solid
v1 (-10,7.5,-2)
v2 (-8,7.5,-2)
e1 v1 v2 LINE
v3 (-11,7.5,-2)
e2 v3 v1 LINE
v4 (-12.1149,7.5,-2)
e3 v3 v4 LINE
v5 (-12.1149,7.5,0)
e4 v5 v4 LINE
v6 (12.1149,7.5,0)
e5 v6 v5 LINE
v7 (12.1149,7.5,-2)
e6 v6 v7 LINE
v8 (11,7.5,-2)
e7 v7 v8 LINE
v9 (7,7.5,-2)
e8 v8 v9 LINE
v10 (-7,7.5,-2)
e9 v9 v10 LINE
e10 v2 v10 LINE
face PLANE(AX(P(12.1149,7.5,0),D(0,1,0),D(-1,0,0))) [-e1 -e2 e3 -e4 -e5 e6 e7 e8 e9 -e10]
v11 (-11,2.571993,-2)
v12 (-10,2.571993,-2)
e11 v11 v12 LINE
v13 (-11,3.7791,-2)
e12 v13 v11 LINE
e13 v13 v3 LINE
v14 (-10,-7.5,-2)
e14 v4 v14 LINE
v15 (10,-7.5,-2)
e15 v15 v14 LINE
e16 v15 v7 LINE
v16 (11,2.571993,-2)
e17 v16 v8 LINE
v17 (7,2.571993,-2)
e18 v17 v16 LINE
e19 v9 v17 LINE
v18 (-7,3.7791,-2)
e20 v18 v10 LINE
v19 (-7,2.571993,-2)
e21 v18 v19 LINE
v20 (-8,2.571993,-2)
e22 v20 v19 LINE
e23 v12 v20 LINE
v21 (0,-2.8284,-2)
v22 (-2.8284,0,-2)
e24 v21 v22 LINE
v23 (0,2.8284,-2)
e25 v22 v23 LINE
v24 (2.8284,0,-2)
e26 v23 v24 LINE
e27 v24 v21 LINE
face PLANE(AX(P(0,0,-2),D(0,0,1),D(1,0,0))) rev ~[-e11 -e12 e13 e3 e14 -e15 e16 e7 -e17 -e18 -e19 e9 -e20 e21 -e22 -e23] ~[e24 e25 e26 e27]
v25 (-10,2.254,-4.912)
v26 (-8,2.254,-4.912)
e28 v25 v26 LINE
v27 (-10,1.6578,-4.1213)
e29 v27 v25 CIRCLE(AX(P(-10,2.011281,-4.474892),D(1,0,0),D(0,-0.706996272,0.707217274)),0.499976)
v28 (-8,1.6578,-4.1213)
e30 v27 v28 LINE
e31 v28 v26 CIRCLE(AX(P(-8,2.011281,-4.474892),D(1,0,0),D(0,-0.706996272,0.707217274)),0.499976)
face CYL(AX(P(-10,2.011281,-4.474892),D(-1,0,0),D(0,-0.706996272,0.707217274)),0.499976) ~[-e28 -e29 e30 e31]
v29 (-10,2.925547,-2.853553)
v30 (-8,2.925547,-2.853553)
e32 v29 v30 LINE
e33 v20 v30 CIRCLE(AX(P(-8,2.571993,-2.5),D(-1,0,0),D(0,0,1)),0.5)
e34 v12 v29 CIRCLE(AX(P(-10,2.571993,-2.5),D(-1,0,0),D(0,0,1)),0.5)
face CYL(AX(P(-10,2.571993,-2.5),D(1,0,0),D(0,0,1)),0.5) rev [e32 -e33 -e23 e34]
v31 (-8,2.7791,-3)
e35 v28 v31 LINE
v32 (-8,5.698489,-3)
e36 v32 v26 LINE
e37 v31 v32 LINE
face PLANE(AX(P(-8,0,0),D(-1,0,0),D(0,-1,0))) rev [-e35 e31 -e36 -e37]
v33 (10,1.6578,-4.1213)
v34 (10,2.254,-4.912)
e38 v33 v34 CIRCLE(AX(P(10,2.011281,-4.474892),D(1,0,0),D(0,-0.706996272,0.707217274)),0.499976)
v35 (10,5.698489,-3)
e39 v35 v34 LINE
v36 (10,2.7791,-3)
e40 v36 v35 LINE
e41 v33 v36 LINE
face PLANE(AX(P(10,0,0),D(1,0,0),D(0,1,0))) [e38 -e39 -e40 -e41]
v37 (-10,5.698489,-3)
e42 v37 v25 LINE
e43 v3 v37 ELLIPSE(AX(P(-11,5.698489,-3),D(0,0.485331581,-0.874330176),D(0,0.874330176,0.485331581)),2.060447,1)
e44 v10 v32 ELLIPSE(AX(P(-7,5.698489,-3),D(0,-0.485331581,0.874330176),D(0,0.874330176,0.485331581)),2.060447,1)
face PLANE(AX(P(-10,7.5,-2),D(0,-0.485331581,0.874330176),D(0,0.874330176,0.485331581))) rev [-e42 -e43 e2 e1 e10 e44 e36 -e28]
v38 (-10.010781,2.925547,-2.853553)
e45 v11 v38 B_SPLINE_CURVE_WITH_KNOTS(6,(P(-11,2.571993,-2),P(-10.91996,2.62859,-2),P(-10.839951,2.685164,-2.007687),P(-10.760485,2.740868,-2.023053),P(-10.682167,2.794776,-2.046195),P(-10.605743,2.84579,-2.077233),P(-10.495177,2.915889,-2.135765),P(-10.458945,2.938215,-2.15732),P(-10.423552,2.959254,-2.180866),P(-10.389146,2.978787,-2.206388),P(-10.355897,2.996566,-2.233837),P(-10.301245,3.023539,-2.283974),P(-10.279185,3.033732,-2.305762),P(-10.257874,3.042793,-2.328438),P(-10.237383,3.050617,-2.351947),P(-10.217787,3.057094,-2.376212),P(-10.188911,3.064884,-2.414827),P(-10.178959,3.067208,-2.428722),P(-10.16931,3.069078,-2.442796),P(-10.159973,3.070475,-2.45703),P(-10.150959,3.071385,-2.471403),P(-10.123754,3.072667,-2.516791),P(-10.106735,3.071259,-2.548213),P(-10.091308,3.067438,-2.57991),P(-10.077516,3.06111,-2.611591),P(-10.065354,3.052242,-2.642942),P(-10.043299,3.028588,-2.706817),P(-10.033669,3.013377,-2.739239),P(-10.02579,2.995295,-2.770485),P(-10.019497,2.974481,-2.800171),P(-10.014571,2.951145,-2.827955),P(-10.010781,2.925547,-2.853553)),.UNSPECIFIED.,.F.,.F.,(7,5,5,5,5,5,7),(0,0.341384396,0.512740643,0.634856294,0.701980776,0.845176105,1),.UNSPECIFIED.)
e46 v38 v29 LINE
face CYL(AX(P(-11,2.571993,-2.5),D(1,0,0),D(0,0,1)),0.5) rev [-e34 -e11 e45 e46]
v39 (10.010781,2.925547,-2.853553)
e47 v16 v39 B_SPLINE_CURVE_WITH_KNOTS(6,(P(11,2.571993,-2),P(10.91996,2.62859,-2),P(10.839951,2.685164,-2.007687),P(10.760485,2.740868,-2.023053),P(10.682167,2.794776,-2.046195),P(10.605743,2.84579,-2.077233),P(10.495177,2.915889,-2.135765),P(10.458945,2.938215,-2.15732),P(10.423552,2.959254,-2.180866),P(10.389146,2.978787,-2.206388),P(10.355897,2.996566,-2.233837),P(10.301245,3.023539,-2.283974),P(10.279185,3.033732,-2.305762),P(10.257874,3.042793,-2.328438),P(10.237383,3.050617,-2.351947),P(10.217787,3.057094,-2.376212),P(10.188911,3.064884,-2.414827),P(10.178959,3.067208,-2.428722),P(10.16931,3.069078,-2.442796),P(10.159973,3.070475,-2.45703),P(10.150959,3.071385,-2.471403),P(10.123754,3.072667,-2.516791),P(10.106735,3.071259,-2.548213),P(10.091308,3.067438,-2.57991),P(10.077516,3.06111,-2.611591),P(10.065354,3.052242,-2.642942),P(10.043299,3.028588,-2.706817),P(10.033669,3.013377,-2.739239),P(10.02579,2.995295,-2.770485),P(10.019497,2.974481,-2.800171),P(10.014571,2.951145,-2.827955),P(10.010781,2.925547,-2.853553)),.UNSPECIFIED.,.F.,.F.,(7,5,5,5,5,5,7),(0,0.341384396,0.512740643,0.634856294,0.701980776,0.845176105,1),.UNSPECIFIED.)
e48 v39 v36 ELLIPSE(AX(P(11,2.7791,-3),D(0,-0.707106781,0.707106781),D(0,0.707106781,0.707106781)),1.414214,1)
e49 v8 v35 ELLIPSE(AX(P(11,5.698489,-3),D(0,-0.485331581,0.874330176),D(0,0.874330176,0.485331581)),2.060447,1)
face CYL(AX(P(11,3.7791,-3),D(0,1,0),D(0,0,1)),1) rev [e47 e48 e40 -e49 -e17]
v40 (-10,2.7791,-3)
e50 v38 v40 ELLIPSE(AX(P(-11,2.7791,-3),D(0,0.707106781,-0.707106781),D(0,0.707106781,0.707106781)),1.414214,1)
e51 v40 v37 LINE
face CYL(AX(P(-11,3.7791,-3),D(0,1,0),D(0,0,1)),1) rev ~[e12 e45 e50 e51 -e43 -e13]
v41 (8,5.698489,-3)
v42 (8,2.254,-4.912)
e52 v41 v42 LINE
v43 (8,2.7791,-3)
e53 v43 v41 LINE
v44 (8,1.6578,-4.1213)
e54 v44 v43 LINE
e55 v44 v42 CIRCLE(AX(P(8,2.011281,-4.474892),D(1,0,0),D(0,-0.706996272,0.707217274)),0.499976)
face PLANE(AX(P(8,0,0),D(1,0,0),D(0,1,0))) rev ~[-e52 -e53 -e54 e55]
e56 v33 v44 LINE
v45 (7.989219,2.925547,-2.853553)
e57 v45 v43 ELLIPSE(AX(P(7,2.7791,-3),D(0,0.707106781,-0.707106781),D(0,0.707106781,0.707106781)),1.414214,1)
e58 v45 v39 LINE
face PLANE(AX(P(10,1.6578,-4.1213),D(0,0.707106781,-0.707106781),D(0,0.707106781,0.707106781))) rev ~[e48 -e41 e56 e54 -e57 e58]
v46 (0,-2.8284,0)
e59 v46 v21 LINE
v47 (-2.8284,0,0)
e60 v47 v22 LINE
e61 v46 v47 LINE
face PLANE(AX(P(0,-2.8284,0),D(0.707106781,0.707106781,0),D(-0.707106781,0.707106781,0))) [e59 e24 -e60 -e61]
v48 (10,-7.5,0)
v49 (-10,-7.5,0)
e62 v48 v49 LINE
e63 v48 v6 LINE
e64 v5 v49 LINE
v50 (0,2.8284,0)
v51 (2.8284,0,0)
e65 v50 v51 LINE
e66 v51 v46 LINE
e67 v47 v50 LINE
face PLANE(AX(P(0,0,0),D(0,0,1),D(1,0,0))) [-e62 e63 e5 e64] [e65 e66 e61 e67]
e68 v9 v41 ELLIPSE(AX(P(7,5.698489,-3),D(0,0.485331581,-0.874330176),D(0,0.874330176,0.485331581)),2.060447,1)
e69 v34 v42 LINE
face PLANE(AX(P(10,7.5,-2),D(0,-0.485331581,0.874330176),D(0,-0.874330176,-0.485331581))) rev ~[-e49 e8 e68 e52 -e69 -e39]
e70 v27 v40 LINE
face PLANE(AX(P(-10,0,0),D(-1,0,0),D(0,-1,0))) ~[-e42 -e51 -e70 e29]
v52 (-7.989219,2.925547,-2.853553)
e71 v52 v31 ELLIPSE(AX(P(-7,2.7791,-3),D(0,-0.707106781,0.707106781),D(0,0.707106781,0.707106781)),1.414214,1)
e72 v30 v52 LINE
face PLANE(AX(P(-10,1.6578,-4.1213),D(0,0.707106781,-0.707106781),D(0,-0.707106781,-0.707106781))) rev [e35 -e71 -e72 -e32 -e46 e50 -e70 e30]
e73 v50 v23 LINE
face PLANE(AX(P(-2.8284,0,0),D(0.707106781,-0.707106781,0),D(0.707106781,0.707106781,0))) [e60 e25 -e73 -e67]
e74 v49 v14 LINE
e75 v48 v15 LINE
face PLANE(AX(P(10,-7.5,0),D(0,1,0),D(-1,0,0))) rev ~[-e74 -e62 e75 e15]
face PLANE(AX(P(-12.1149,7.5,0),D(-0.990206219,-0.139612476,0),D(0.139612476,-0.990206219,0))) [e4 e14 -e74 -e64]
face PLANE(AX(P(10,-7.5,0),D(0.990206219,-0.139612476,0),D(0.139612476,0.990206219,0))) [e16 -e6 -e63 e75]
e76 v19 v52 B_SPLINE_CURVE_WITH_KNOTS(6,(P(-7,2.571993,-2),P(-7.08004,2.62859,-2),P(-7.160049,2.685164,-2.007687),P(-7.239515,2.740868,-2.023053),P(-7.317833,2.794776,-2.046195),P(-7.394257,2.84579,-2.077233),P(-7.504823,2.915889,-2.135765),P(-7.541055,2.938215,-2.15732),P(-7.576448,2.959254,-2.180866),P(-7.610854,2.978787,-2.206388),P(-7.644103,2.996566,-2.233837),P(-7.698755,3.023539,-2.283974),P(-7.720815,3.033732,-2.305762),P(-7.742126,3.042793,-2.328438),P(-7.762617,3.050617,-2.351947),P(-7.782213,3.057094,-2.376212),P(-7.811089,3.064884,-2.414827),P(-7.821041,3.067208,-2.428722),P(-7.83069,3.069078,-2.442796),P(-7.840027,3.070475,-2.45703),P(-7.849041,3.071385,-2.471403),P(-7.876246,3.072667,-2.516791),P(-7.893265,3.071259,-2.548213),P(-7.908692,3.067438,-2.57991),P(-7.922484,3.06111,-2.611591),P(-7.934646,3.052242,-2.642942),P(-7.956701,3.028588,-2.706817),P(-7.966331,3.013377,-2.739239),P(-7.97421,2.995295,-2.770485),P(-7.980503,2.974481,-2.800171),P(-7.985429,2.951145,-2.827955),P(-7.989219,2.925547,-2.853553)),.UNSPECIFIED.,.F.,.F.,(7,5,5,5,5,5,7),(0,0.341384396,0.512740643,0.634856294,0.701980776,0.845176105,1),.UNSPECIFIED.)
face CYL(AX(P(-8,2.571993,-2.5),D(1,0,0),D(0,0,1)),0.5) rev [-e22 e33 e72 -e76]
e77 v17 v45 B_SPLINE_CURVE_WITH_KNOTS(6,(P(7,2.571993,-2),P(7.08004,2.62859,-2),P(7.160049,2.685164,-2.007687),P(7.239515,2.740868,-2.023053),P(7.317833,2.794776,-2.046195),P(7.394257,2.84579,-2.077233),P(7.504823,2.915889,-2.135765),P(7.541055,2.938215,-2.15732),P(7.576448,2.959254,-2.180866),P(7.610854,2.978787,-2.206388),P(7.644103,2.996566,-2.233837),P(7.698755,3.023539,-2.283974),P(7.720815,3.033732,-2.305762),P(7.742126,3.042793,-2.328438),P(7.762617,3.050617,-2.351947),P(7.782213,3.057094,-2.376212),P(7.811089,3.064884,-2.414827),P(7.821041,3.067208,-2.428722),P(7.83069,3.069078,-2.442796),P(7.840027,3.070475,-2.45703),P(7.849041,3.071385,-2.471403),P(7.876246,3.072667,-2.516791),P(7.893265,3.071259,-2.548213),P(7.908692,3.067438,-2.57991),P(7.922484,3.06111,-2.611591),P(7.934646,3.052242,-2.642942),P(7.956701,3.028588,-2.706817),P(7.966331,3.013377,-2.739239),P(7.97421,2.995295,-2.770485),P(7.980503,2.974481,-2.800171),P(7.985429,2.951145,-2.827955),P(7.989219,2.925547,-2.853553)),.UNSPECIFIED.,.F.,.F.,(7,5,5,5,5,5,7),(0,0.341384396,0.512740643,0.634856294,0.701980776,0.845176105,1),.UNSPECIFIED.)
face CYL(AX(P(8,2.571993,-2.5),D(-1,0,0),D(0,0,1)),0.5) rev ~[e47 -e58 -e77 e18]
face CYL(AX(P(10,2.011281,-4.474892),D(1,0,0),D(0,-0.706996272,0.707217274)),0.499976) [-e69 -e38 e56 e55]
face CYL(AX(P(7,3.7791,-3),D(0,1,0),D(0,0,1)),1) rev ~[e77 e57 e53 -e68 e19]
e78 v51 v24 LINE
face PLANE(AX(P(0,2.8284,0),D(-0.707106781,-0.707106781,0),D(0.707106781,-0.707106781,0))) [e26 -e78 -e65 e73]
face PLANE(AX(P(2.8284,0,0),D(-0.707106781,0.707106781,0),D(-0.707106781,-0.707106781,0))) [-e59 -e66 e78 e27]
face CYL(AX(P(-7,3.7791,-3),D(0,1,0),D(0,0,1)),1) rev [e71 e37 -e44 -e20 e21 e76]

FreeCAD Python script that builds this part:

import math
import FreeCAD as App
import Part
import Sketcher
from FreeCAD import Vector
Q = App.Units.Quantity


def edges_at(feature, points):
    """Names of the edges that pass closest to the given points."""
    edges = feature.Shape.Edges
    near = lambda p: min(range(len(edges)), key=lambda i: edges[i].distToShape(Part.Vertex(*p))[0])
    return sorted({f"Edge{near(p) + 1}" for p in points})

doc = App.newDocument("Part")
body = doc.addObject("PartDesign::Body", "Body")

# Sketch on XY plane
sketch1 = body.newObject("Sketcher::SketchObject", "Sketch")
sketch1.AttachmentSupport = (doc.getObject("XY_Plane"), [""])
sketch1.MapMode = "FlatFace"
sketch1.addGeometry(Part.LineSegment(Vector(12.1, 7.5, 0), Vector(-12.1, 7.5, 0)), False)
sketch1.addGeometry(Part.LineSegment(Vector(-12.1, 7.5, 0), Vector(-10, -7.5, 0)), False)
sketch1.addGeometry(Part.LineSegment(Vector(-10, -7.5, 0), Vector(10, -7.5, 0)), False)
sketch1.addGeometry(Part.LineSegment(Vector(10, -7.5, 0), Vector(12.1, 7.5, 0)), False)
sketch1.addGeometry(Part.LineSegment(Vector(0, 2.8, 0), Vector(2.8, 0, 0)), False)
sketch1.addGeometry(Part.LineSegment(Vector(2.8, 0, 0), Vector(0, -2.8, 0)), False)
sketch1.addGeometry(Part.LineSegment(Vector(0, -2.8, 0), Vector(-2.8, 0, 0)), False)
sketch1.addGeometry(Part.LineSegment(Vector(-2.8, 0, 0), Vector(0, 2.8, 0)), False)
sketch1.addConstraint(Sketcher.Constraint("Coincident", 0, 2, 1, 1))
sketch1.addConstraint(Sketcher.Constraint("Coincident", 1, 2, 2, 1))
sketch1.addConstraint(Sketcher.Constraint("Coincident", 2, 2, 3, 1))
sketch1.addConstraint(Sketcher.Constraint("Coincident", 3, 2, 0, 1))
sketch1.addConstraint(Sketcher.Constraint("Coincident", 4, 2, 5, 1))
sketch1.addConstraint(Sketcher.Constraint("Coincident", 5, 2, 6, 1))
sketch1.addConstraint(Sketcher.Constraint("Coincident", 6, 2, 7, 1))
sketch1.addConstraint(Sketcher.Constraint("Coincident", 7, 2, 4, 1))
sketch1.addConstraint(Sketcher.Constraint("Horizontal", 0))
sketch1.addConstraint(Sketcher.Constraint("Horizontal", 2))
sketch1.addConstraint(Sketcher.Constraint("Symmetric", 4, 2, 6, 2, -1, 1))
sketch1.addConstraint(Sketcher.Constraint("Symmetric", 5, 2, 7, 2, -1, 1))
sketch1.addConstraint(Sketcher.Constraint("PointOnObject", 4, 2, -1))
sketch1.addConstraint(Sketcher.Constraint("PointOnObject", 5, 2, -2))
sketch1.addConstraint(Sketcher.Constraint("Perpendicular", 4, 5))
sketch1.addConstraint(Sketcher.Constraint("Equal", 1, 3))
sketch1.addConstraint(Sketcher.Constraint("DistanceX", 2, 1, 2, 2, 20.0))
sketch1.addConstraint(Sketcher.Constraint("Distance", 4, 4.0))
sketch1.addConstraint(Sketcher.Constraint("DistanceY", 1, 2, 0, 2, 15.0))
sketch1.addConstraint(Sketcher.Constraint("DistanceX", 0, 2, 0, 1, 24.2298))
sketch1.addConstraint(Sketcher.Constraint("DistanceX", 1, 2, -1, 1, 10.0))
sketch1.addConstraint(Sketcher.Constraint("DistanceY", -1, 1, 0, 2, 7.5))
pad1 = body.newObject("PartDesign::Pad", "Pad")
pad1.Profile = sketch1
pad1.Length = 2
pad1.Reversed = True

# Sketch on YZ plane
sketch2 = body.newObject("Sketcher::SketchObject", "Sketch001")
sketch2.AttachmentSupport = (doc.getObject("YZ_Plane"), [""])
sketch2.MapMode = "FlatFace"
sketch2.AttachmentOffset = App.Placement(Vector(0, 0, 10), App.Rotation())
sketch2.addGeometry(Part.LineSegment(Vector(2.3, -4.9, 0), Vector(7.5, -2, 0)), False)
sketch2.addGeometry(Part.LineSegment(Vector(7.5, -2, 0), Vector(3.8, -2, 0)), False)
sketch2.addGeometry(Part.LineSegment(Vector(3.8, -2, 0), Vector(1.7, -4.1, 0)), False)
sketch2.addGeometry(Part.ArcOfCircle(Part.Circle(Vector(2, -4.5, 0), Vector(0, 0, 1), 0.5), math.radians(135), math.radians(299)), False)
sketch2.addConstraint(Sketcher.Constraint("Coincident", 0, 2, 1, 1))
sketch2.addConstraint(Sketcher.Constraint("Coincident", 1, 2, 2, 1))
sketch2.addConstraint(Sketcher.Constraint("Tangent", 2, 2, 3, 1))
sketch2.addConstraint(Sketcher.Constraint("Tangent", 3, 2, 0, 1))
sketch2.addConstraint(Sketcher.Constraint("Horizontal", 1))
sketch2.addConstraint(Sketcher.Constraint("Radius", 3, 0.5))
sketch2.addConstraint(Sketcher.Constraint("Distance", 0, 6.0))
sketch2.addConstraint(Sketcher.Constraint("Distance", 2, 3.0))
sketch2.addConstraint(Sketcher.Constraint("Angle", 2, Q("-135 deg")))
sketch2.addConstraint(Sketcher.Constraint("DistanceY", 0, 2, -1, 1, 2.0))
sketch2.addConstraint(Sketcher.Constraint("DistanceX", -1, 1, 0, 2, 7.5))
pad2 = body.newObject("PartDesign::Pad", "Pad001")
pad2.Profile = sketch2
pad2.Length = 2
pad2.Reversed = True
doc.recompute()

fillet = body.newObject("PartDesign::Fillet", "Fillet")
fillet.Base = (pad2, edges_at(pad2, [(10, 5.64, -2), (8, 5.64, -2)]))
fillet.Radius = 1
doc.recompute()

fillet2 = body.newObject("PartDesign::Fillet", "Fillet001")
fillet2.Base = (fillet, edges_at(fillet, [(7.5, 3.779, -2), (10.5, 3.779, -2)]))
fillet2.Radius = 0.5
doc.recompute()

mirrored = body.newObject("PartDesign::Mirrored", "Mirrored")
mirrored.Originals = [pad2, fillet, fillet2]
mirrored.MirrorPlane = (doc.getObject("YZ_Plane"), [""])
body.Tip = mirrored

doc.recompute()
